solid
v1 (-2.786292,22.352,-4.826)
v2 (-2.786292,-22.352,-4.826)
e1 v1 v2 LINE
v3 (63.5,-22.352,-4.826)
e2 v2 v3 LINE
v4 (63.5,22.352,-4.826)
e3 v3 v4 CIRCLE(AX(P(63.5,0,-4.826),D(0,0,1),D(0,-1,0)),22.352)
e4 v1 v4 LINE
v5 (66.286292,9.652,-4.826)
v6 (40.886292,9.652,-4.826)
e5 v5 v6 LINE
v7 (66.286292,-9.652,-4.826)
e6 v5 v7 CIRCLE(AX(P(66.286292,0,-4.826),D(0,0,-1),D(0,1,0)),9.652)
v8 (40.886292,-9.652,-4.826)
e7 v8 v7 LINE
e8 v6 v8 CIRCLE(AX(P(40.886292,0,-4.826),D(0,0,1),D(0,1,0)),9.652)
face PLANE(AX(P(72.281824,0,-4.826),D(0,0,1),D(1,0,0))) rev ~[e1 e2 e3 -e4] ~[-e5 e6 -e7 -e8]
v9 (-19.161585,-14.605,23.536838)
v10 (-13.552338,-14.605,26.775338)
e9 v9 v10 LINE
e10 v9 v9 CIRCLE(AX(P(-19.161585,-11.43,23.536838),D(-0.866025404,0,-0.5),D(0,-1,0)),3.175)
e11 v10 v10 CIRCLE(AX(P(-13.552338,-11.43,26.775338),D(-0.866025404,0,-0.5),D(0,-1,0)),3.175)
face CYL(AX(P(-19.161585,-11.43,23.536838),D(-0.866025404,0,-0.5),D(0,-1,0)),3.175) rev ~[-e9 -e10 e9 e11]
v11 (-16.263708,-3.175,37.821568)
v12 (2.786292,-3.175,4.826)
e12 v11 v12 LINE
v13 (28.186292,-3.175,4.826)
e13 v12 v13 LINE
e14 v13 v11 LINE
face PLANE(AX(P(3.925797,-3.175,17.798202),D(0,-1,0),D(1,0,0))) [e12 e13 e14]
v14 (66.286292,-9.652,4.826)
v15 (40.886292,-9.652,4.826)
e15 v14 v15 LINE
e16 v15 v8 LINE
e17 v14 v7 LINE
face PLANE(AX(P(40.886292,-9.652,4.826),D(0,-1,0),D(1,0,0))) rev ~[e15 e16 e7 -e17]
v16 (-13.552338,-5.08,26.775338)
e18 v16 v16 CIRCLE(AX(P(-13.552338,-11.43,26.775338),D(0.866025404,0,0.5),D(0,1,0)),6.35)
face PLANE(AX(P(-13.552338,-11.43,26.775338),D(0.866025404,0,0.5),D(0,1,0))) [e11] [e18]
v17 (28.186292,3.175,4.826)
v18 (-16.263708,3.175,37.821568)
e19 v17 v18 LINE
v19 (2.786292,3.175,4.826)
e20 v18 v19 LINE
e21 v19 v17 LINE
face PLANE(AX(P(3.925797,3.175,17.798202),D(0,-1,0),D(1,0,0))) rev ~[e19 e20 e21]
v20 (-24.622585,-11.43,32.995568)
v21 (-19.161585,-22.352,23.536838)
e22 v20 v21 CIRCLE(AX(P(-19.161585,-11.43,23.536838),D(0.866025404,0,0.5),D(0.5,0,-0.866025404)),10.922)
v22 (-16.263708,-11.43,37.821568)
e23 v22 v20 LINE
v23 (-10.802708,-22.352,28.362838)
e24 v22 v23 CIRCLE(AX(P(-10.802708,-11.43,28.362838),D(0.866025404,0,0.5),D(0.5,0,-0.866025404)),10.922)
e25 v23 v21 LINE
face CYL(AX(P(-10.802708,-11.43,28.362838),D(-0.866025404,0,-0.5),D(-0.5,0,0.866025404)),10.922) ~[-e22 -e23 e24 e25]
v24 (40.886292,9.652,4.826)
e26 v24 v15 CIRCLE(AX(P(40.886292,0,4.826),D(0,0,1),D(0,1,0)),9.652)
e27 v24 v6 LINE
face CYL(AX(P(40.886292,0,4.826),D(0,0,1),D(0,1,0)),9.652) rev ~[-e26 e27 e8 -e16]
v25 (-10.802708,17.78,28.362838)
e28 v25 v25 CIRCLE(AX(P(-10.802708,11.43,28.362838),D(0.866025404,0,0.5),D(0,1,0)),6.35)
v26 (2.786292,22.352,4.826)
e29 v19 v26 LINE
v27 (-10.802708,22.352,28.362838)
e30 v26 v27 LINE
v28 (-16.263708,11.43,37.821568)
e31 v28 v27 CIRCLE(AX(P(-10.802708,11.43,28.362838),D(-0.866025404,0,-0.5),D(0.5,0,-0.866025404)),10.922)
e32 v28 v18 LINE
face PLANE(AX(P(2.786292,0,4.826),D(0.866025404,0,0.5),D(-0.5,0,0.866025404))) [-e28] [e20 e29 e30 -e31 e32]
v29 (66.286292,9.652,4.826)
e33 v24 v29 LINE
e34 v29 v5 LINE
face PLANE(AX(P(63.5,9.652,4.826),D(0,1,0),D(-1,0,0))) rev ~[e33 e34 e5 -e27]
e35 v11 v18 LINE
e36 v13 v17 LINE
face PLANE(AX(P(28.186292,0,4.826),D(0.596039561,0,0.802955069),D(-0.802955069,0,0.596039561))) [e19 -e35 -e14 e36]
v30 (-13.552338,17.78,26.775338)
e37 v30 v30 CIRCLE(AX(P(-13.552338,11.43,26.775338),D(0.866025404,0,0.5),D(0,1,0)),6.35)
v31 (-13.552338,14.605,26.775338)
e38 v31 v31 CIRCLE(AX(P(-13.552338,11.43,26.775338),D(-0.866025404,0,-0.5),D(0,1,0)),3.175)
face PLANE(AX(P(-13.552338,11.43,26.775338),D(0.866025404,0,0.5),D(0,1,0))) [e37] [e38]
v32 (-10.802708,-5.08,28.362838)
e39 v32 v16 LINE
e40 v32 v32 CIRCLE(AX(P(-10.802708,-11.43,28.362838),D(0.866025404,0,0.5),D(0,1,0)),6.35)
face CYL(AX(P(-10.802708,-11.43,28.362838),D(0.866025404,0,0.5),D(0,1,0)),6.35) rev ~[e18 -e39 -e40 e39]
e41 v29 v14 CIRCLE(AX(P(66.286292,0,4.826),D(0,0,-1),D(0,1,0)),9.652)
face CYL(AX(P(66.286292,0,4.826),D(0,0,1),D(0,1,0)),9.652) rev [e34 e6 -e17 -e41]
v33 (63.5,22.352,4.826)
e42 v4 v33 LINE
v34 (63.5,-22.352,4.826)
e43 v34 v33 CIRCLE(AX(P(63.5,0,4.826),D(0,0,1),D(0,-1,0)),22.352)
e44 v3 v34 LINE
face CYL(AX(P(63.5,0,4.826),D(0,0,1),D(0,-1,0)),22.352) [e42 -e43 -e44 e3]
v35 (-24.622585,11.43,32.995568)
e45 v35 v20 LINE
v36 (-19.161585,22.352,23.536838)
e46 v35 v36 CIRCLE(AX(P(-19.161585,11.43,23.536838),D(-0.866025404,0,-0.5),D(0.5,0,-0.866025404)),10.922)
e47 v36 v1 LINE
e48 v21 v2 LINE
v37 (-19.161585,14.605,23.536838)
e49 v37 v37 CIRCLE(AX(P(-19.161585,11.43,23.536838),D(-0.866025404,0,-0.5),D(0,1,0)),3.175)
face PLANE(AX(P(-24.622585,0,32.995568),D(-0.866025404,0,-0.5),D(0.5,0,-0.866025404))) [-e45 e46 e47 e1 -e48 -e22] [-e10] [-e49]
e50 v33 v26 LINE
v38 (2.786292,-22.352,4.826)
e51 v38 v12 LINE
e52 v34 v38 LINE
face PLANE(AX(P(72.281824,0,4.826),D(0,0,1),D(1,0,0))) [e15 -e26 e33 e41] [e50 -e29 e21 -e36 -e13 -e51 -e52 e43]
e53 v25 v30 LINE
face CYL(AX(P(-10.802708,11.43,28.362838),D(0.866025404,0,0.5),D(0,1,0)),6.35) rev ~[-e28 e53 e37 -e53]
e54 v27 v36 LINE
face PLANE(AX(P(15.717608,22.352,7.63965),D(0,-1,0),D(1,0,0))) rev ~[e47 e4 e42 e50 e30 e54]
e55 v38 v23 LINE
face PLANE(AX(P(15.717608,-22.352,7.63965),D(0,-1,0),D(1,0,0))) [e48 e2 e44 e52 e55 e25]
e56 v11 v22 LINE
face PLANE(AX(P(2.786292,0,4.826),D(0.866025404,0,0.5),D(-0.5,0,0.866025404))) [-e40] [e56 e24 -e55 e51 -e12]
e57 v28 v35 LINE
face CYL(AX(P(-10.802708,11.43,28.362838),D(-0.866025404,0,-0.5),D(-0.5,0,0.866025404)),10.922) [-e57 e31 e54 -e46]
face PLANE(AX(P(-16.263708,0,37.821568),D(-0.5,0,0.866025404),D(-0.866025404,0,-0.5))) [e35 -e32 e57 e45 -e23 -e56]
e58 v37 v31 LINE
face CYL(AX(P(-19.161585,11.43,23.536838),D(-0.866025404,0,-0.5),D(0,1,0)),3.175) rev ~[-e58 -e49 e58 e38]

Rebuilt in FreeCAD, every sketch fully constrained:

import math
import FreeCAD as App
import Part
import Sketcher
from FreeCAD import Vector
Q = App.Units.Quantity


def edges_at(feature, points):
    """Names of the edges that pass closest to the given points."""
    edges = feature.Shape.Edges
    near = lambda p: min(range(len(edges)), key=lambda i: edges[i].distToShape(Part.Vertex(*p))[0])
    return sorted({f"Edge{near(p) + 1}" for p in points})

doc = App.newDocument("Part")
params = doc.addObject("Spreadsheet::Sheet", "Params")
for row, (alias, value) in enumerate([
    ("sketch1_length", "1.5 in"),
    ("sketch1_height", "0.38 in"),
    ("sketch1_length2", "0.38 in"),
    ("pad1_length", "1.76 in"),
    ("sketch2_width", "1 in"),
    ("sketch2_length", "1.5 in"),
    ("pad2_length", "0.25 in"),
    ("fillet_radius", "0.43 in"),
    ("sketch3_radius", "0.88 in"),
    ("sketch3_radius2", "0.38 in"),
    ("pad3_length", "0.38 in"),
    ("sketch4_radius", "0.38 in"),
    ("pocket1_length", "1 in"),
    ("sketch5_diameter", "0.25 in"),
    ("sketch6_diameter", "0.5 in"),
    ("pocket3_length", "0.125 in"),
], start=1):
    params.set(f"A{row}", alias)
    params.set(f"B{row}", "=" + value)
    params.setAlias(f"B{row}", alias)

body = doc.addObject("PartDesign::Body", "Body")

sketch1 = body.newObject("Sketcher::SketchObject", "Sketch")
sketch1.AttachmentSupport = (doc.getObject("XZ_Plane"), [""])
sketch1.MapMode = "FlatFace"
sketch1.addGeometry([
    Part.LineSegment(Vector(3, 5, 0), Vector(-16, 38, 0)),
    Part.LineSegment(Vector(-16, 38, 0), Vector(-25, 33, 0)),
    Part.LineSegment(Vector(-25, 33, 0), Vector(-3, -5, 0)),
    Part.LineSegment(Vector(-3, -5, 0), Vector(64, -5, 0)),
    Part.LineSegment(Vector(64, -5, 0), Vector(64, 5, 0)),
    Part.LineSegment(Vector(64, 5, 0), Vector(3, 5, 0)),
], False)
sketch1.addConstraint([
    Sketcher.Constraint("Coincident", 0, 2, 1, 1),
    Sketcher.Constraint("Coincident", 1, 2, 2, 1),
    Sketcher.Constraint("Coincident", 2, 2, 3, 1),
    Sketcher.Constraint("Coincident", 3, 2, 4, 1),
    Sketcher.Constraint("Coincident", 4, 2, 5, 1),
    Sketcher.Constraint("Coincident", 5, 2, 0, 1),
    Sketcher.Constraint("Horizontal", 3),
    Sketcher.Constraint("Vertical", 4),
    Sketcher.Constraint("Horizontal", 5),
    Sketcher.Constraint("Symmetric", 2, 2, 5, 2, -1, 1),
    Sketcher.Constraint("Perpendicular", 0, 1),
    Sketcher.Constraint("Perpendicular", 1, 2),
    Sketcher.Constraint("Angle", 0, Q("120 deg")),
    Sketcher.Constraint("Distance", 0, Q("1.5 in")),
    Sketcher.Constraint("DistanceY", 4, 1, 4, 2, Q("0.38 in")),
    Sketcher.Constraint("DistanceX", -1, 1, 3, 2, Q("2.5 in")),
    Sketcher.Constraint("Distance", 1, Q("0.38 in")),
])
sketch1.setExpression("Constraints[13]", "Params.sketch1_length")
sketch1.setExpression("Constraints[14]", "Params.sketch1_height")
sketch1.setExpression("Constraints[16]", "Params.sketch1_length2")
pad1 = body.newObject("PartDesign::Pad", "Pad")
pad1.Profile = sketch1
pad1.setExpression("Length", "Params.pad1_length")
pad1.Midplane = True

sketch2 = body.newObject("Sketcher::SketchObject", "Sketch001")
sketch2.AttachmentSupport = (doc.getObject("XZ_Plane"), [""])
sketch2.MapMode = "FlatFace"
sketch2.addGeometry([
    Part.LineSegment(Vector(-16, 38, 0), Vector(3, 5, 0)),
    Part.LineSegment(Vector(3, 5, 0), Vector(28, 5, 0)),
    Part.LineSegment(Vector(28, 5, 0), Vector(-16, 38, 0)),
], False)
sketch2.addConstraint([
    Sketcher.Constraint("Coincident", 0, 2, 1, 1),
    Sketcher.Constraint("Coincident", 1, 2, 2, 1),
    Sketcher.Constraint("Coincident", 2, 2, 0, 1),
    Sketcher.Constraint("Horizontal", 1),
    Sketcher.Constraint("DistanceX", 1, 1, 1, 2, Q("1 in")),
    Sketcher.Constraint("Angle", 0, Q("-60 deg")),
    Sketcher.Constraint("Distance", 0, Q("1.5 in")),
    Sketcher.Constraint("DistanceY", -1, 1, 0, 2, Q("0.19 in")),
    Sketcher.Constraint("DistanceX", -1, 1, 0, 2, Q("2.786292 mm")),
])
sketch2.setExpression("Constraints[4]", "Params.sketch2_width")
sketch2.setExpression("Constraints[6]", "Params.sketch2_length")
pad2 = body.newObject("PartDesign::Pad", "Pad001")
pad2.Profile = sketch2
pad2.setExpression("Length", "Params.pad2_length")
pad2.Midplane = True
doc.recompute()

fillet = body.newObject("PartDesign::Fillet", "Fillet")
fillet.Base = (pad2, edges_at(pad2, [(-20.443, -22.352, 35.409), (-20.443, 22.352, 35.409)]))
fillet.setExpression("Radius", "Params.fillet_radius")

sketch3 = body.newObject("Sketcher::SketchObject", "Sketch002")
sketch3.AttachmentSupport = (doc.getObject("XY_Plane"), [""])
sketch3.MapMode = "FlatFace"
sketch3.AttachmentOffset = App.Placement(Vector(0, 0, 0.19 * 25.4), App.Rotation())
sketch3.addGeometry([
    Part.LineSegment(Vector(63.5, -9.7, 0), Vector(63.5, -22.4, 0)),
    Part.ArcOfCircle(Part.Circle(Vector(63.5, 0, 0), Vector(0, 0, 1), 22.4), math.radians(-90), math.radians(90)),
    Part.LineSegment(Vector(63.5, 22.4, 0), Vector(63.5, 9.7, 0)),
    Part.LineSegment(Vector(63.5, 9.7, 0), Vector(66.3, 9.7, 0)),
    Part.ArcOfCircle(Part.Circle(Vector(66.3, 0, 0), Vector(0, 0, 1), 9.7), math.radians(-90), math.radians(90)),
    Part.LineSegment(Vector(66.3, -9.7, 0), Vector(63.5, -9.7, 0)),
], False)
sketch3.addConstraint([
    Sketcher.Constraint("Coincident", 0, 2, 1, 1),
    Sketcher.Constraint("Coincident", 1, 2, 2, 1),
    Sketcher.Constraint("Coincident", 2, 2, 3, 1),
    Sketcher.Constraint("Tangent", 3, 2, 4, 2),
    Sketcher.Constraint("Tangent", 4, 1, 5, 1),
    Sketcher.Constraint("Coincident", 5, 2, 0, 1),
    Sketcher.Constraint("Vertical", 0),
    Sketcher.Constraint("Vertical", 2),
    Sketcher.Constraint("Horizontal", 3),
    Sketcher.Constraint("Horizontal", 5),
    Sketcher.Constraint("Symmetric", 0, 2, 1, 2, -1),
    Sketcher.Constraint("PointOnObject", 4, 3, -1),
    Sketcher.Constraint("Vertical", 1, 3, 0, 2),
    Sketcher.Constraint("Radius", 1, Q("0.88 in")),
    Sketcher.Constraint("Radius", 4, Q("0.38 in")),
    Sketcher.Constraint("DistanceX", -1, 1, 1, 3, Q("2.5 in")),
    Sketcher.Constraint("DistanceX", 3, 1, 3, 2, Q("2.786292 mm")),
])
sketch3.setExpression("Constraints[13]", "Params.sketch3_radius")
sketch3.setExpression("Constraints[14]", "Params.sketch3_radius2")
pad3 = body.newObject("PartDesign::Pad", "Pad002")
pad3.Profile = sketch3
pad3.setExpression("Length", "Params.pad3_length")
pad3.Reversed = True

sketch4 = body.newObject("Sketcher::SketchObject", "Sketch003")
sketch4.AttachmentSupport = (doc.getObject("XY_Plane"), [""])
sketch4.MapMode = "FlatFace"
sketch4.AttachmentOffset = App.Placement(Vector(0, 0, 0.19 * 25.4), App.Rotation())
sketch4.addGeometry([
    Part.LineSegment(Vector(41, -10, 0), Vector(64, -10, 0)),
    Part.LineSegment(Vector(64, -10, 0), Vector(64, 10, 0)),
    Part.LineSegment(Vector(64, 10, 0), Vector(41, 10, 0)),
    Part.ArcOfCircle(Part.Circle(Vector(41, 0, 0), Vector(0, 0, 1), 10), math.radians(90), math.radians(270)),
], False)
sketch4.addConstraint([
    Sketcher.Constraint("Coincident", 0, 2, 1, 1),
    Sketcher.Constraint("Coincident", 1, 2, 2, 1),
    Sketcher.Constraint("Tangent", 2, 2, 3, 1),
    Sketcher.Constraint("Tangent", 3, 2, 0, 1),
    Sketcher.Constraint("Horizontal", 0),
    Sketcher.Constraint("Vertical", 1),
    Sketcher.Constraint("Horizontal", 2),
    Sketcher.Constraint("PointOnObject", 3, 3, -1),
    Sketcher.Constraint("Radius", 3, Q("0.38 in")),
    Sketcher.Constraint("DistanceX", -1, 1, 0, 2, Q("2.5 in")),
    Sketcher.Constraint("DistanceX", 0, 1, 0, 2, Q("22.613708 mm")),
])
sketch4.setExpression("Constraints[8]", "Params.sketch4_radius")
pocket1 = body.newObject("PartDesign::Pocket", "Pocket")
pocket1.Profile = sketch4
pocket1.setExpression("Length", "Params.pocket1_length")

sketch5 = body.newObject("Sketcher::SketchObject", "Sketch004")
sketch5.Placement = App.Placement(Vector(-4.179439, 0, -2.413), App.Rotation(Vector(0, -1, 0), Vector(-0.5, 0, 0.866025404), Vector(-0.866025404, 0, -0.5), "ZXY"))
sketch5.addGeometry([
    Part.Circle(Vector(11.4, 30, 0), Vector(0, 0, 1), 3.2),
    Part.Circle(Vector(-11.4, 30, 0), Vector(0, 0, 1), 3.2),
], False)
sketch5.addConstraint([
    Sketcher.Constraint("Equal", 0, 1),
    Sketcher.Constraint("Symmetric", 0, 3, 1, 3, -2),
    Sketcher.Constraint("Diameter", 0, Q("0.25 in")),
    Sketcher.Constraint("DistanceX", 1, 3, 0, 3, Q("0.9 in")),
    Sketcher.Constraint("DistanceY", -1, 1, 0, 3, Q("29.964292 mm")),
])
sketch5.setExpression("Constraints[2]", "Params.sketch5_diameter")
pocket2 = body.newObject("PartDesign::Pocket", "Pocket001")
pocket2.Profile = sketch5
pocket2.Type = "ThroughAll"

sketch6 = body.newObject("Sketcher::SketchObject", "Sketch005")
sketch6.Placement = App.Placement(Vector(4.179439, 0, 2.413), App.Rotation(Vector(0, 1, 0), Vector(-0.5, 0, 0.866025404), Vector(0.866025404, 0, 0.5), "ZXY"))
sketch6.addGeometry([
    Part.Circle(Vector(-11, 30, 0), Vector(0, 0, 1), 6),
    Part.Circle(Vector(11, 30, 0), Vector(0, 0, 1), 6),
], False)
sketch6.addConstraint([
    Sketcher.Constraint("Equal", 0, 1),
    Sketcher.Constraint("Symmetric", 0, 3, 1, 3, -2),
    Sketcher.Constraint("Diameter", 0, Q("0.5 in")),
    Sketcher.Constraint("DistanceX", 0, 3, 1, 3, Q("0.9 in")),
    Sketcher.Constraint("DistanceY", -1, 1, 0, 3, Q("29.964292 mm")),
])
sketch6.setExpression("Constraints[2]", "Params.sketch6_diameter")
pocket3 = body.newObject("PartDesign::Pocket", "Pocket002")
pocket3.Profile = sketch6
pocket3.setExpression("Length", "Params.pocket3_length")

doc.recompute()
